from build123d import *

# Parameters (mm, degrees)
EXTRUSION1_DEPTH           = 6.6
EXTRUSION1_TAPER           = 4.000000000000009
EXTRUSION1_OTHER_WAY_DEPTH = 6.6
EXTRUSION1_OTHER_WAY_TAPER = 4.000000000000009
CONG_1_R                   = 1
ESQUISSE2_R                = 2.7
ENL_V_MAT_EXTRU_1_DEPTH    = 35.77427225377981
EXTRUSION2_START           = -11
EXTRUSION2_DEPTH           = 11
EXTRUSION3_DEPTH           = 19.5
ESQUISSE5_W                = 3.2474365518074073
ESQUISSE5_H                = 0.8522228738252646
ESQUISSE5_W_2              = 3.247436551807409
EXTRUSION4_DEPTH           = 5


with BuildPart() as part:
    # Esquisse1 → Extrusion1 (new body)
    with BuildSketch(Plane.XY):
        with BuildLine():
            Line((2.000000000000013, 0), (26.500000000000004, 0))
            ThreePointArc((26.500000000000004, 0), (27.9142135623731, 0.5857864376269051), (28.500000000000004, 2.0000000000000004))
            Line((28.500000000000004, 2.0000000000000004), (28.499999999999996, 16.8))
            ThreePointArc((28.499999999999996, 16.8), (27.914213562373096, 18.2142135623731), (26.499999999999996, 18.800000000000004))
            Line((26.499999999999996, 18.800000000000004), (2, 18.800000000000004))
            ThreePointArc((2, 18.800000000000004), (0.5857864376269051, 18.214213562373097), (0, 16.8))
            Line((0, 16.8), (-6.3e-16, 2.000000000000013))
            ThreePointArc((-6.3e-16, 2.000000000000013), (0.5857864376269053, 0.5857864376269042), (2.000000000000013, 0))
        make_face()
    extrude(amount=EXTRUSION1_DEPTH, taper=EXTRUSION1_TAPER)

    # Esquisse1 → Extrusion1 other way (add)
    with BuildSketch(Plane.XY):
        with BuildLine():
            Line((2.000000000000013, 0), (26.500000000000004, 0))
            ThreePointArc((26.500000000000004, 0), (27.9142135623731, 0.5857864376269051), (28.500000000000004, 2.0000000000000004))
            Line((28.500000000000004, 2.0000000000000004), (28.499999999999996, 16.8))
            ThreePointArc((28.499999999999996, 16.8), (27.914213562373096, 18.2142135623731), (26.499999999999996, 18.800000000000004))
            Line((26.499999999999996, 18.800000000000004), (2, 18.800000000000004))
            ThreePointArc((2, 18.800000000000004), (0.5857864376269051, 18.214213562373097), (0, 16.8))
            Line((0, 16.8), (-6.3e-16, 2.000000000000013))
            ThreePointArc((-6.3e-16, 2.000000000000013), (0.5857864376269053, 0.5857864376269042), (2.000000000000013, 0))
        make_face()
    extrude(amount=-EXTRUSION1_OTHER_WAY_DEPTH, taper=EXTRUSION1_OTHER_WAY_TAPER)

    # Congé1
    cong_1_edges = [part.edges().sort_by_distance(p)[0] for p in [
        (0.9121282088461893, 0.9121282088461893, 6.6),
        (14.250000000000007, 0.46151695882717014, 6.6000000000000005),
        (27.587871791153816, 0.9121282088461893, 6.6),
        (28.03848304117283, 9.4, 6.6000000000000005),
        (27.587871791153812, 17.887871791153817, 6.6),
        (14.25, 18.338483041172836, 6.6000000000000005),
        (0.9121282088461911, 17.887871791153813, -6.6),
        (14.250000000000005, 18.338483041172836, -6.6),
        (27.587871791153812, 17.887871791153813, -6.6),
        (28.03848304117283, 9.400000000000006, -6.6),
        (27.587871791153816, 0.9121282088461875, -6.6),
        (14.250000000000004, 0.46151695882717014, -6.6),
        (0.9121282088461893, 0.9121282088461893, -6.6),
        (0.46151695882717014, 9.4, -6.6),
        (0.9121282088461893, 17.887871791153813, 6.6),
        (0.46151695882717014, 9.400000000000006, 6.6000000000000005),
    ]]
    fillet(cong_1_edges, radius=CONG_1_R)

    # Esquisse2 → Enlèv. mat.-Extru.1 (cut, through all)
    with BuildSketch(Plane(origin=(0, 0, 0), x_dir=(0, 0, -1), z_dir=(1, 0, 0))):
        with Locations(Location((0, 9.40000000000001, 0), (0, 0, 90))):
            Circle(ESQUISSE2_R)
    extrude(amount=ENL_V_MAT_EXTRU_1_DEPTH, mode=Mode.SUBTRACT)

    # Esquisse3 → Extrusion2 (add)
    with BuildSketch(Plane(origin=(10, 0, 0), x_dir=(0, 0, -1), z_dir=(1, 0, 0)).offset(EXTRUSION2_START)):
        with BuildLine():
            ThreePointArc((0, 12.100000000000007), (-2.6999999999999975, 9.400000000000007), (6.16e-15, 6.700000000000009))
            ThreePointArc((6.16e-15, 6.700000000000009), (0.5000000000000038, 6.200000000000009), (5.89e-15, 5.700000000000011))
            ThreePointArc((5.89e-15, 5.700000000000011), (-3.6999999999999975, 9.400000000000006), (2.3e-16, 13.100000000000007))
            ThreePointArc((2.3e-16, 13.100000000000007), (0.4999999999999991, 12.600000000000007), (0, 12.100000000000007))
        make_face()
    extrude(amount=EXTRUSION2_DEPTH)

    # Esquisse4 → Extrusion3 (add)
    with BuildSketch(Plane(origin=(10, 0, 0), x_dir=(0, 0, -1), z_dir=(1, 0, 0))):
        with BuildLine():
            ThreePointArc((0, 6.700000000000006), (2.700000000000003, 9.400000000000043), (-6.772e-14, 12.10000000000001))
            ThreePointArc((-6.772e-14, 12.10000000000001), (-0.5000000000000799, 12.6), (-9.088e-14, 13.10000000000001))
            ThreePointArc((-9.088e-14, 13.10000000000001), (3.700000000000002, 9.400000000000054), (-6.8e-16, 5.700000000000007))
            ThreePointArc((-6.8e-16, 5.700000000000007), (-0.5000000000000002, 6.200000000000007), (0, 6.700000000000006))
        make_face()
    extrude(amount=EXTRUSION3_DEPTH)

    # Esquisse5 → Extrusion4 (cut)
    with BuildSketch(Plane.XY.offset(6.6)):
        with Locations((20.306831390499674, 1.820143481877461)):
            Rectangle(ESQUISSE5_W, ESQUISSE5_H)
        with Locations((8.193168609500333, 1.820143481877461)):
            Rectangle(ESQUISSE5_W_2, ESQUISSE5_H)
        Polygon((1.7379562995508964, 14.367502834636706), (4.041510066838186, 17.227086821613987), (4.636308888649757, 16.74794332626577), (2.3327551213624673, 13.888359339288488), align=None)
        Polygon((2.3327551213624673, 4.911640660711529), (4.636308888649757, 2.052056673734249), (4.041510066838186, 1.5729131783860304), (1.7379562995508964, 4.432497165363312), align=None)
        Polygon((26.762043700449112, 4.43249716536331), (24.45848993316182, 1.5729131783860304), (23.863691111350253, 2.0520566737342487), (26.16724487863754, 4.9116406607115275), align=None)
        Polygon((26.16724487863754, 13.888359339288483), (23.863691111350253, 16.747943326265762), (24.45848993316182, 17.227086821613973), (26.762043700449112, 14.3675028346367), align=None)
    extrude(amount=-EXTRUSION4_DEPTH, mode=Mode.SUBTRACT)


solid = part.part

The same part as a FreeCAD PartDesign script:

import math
import FreeCAD as App
import Part
import Sketcher
Q = App.Units.Quantity


def edges_at(feature, points):
    """Names of the edges that pass closest to the given points."""
    edges = feature.Shape.Edges
    near = lambda p: min(range(len(edges)), key=lambda i: edges[i].distToShape(Part.Vertex(*p))[0])
    return sorted({f"Edge{near(p) + 1}" for p in points})

doc = App.newDocument("Part")
params = doc.addObject("Spreadsheet::Sheet", "Params")
for row, (alias, value) in enumerate([
    ("sketch1_radius", "2 mm"),
    ("sketch1_width", "24.5 mm"),
    ("sketch1_height", "14.8 mm"),
    ("pad1_length", "6.6 mm"),
    ("pad1_taper", "-4 deg"),
    ("sketch2_radius", "2 mm"),
    ("sketch2_width", "24.5 mm"),
    ("sketch2_height", "14.8 mm"),
    ("pad2_length", "6.6 mm"),
    ("pad2_taper", "-4 deg"),
    ("fillet_radius", "1 mm"),
    ("sketch3_diameter", "5.4 mm"),
    ("sketch4_radius", "2.7 mm"),
    ("sketch4_radius2", "0.5 mm"),
    ("pad3_length", "11 mm"),
    ("sketch5_radius", "2.7 mm"),
    ("sketch5_radius2", "0.5 mm"),
    ("pad4_length", "19.5 mm"),
    ("pocket2_length", "5 mm"),
], start=1):
    params.set(f"A{row}", alias)
    params.set(f"B{row}", "=" + value)
    params.setAlias(f"B{row}", alias)

body = doc.addObject("PartDesign::Body", "Body")

# Sketch on XY plane
sketch1 = doc.addObject("Sketcher::SketchObject", "Sketch")
body.addObject(sketch1)
sketch1.AttachmentSupport = (doc.XY_Plane, [""])
sketch1.MapMode = "FlatFace"
sketch1.addGeometry([
    Part.LineSegment(App.Vector(2, 0, 0), App.Vector(26.5, 0, 0)),  # 0
    Part.ArcOfCircle(Part.Circle(App.Vector(26.5, 2, 0), App.Vector(0, 0, 1), 2), math.radians(-90), math.radians(0)),  # 1
    Part.LineSegment(App.Vector(28.5, 2, 0), App.Vector(28.5, 16.8, 0)),  # 2
    Part.ArcOfCircle(Part.Circle(App.Vector(26.5, 16.8, 0), App.Vector(0, 0, 1), 2), math.radians(0), math.radians(90)),  # 3
    Part.LineSegment(App.Vector(26.5, 18.8, 0), App.Vector(2, 18.8, 0)),  # 4
    Part.ArcOfCircle(Part.Circle(App.Vector(2, 16.8, 0), App.Vector(0, 0, 1), 2), math.radians(90), math.radians(180)),  # 5
    Part.LineSegment(App.Vector(0, 16.8, 0), App.Vector(0, 2, 0)),  # 6
    Part.ArcOfCircle(Part.Circle(App.Vector(2, 2, 0), App.Vector(0, 0, 1), 2), math.radians(180), math.radians(270)),  # 7
], False)
sketch1.addConstraint([
    Sketcher.Constraint("Tangent", 0, 2, 1, 1),
    Sketcher.Constraint("Tangent", 1, 2, 2, 1),
    Sketcher.Constraint("Tangent", 2, 2, 3, 1),
    Sketcher.Constraint("Tangent", 3, 2, 4, 1),
    Sketcher.Constraint("Tangent", 4, 2, 5, 1),
    Sketcher.Constraint("Tangent", 5, 2, 6, 1),
    Sketcher.Constraint("Tangent", 6, 2, 7, 1),
    Sketcher.Constraint("Tangent", 7, 2, 0, 1),
    Sketcher.Constraint("Horizontal", 0),
    Sketcher.Constraint("Vertical", 2),
    Sketcher.Constraint("Horizontal", 4),
    Sketcher.Constraint("Vertical", 6),
    Sketcher.Constraint("Equal", 1, 3),
    Sketcher.Constraint("Equal", 3, 5),
    Sketcher.Constraint("Equal", 5, 7),
    Sketcher.Constraint("PointOnObject", 0, 2, -1),
    Sketcher.Constraint("PointOnObject", 5, 2, -2),
    Sketcher.Constraint("Radius", 1, Q("2 mm")),
    Sketcher.Constraint("DistanceX", 0, 1, 0, 2, Q("24.5 mm")),
    Sketcher.Constraint("DistanceY", 2, 1, 2, 2, Q("14.8 mm")),
])
sketch1.setExpression("Constraints[17]", "Params.sketch1_radius")
sketch1.setExpression("Constraints[18]", "Params.sketch1_width")
sketch1.setExpression("Constraints[19]", "Params.sketch1_height")
pad1 = doc.addObject("PartDesign::Pad", "Pad")
body.addObject(pad1)
pad1.Profile = sketch1
pad1.setExpression("Length", "Params.pad1_length")
pad1.setExpression("TaperAngle", "Params.pad1_taper")

# Sketch on XY plane
sketch2 = doc.addObject("Sketcher::SketchObject", "Sketch001")
body.addObject(sketch2)
sketch2.AttachmentSupport = (doc.XY_Plane, [""])
sketch2.MapMode = "FlatFace"
sketch2.addGeometry([
    Part.LineSegment(App.Vector(2, 0, 0), App.Vector(26.5, 0, 0)),  # 0
    Part.ArcOfCircle(Part.Circle(App.Vector(26.5, 2, 0), App.Vector(0, 0, 1), 2), math.radians(-90), math.radians(0)),  # 1
    Part.LineSegment(App.Vector(28.5, 2, 0), App.Vector(28.5, 16.8, 0)),  # 2
    Part.ArcOfCircle(Part.Circle(App.Vector(26.5, 16.8, 0), App.Vector(0, 0, 1), 2), math.radians(0), math.radians(90)),  # 3
    Part.LineSegment(App.Vector(26.5, 18.8, 0), App.Vector(2, 18.8, 0)),  # 4
    Part.ArcOfCircle(Part.Circle(App.Vector(2, 16.8, 0), App.Vector(0, 0, 1), 2), math.radians(90), math.radians(180)),  # 5
    Part.LineSegment(App.Vector(0, 16.8, 0), App.Vector(0, 2, 0)),  # 6
    Part.ArcOfCircle(Part.Circle(App.Vector(2, 2, 0), App.Vector(0, 0, 1), 2), math.radians(180), math.radians(270)),  # 7
], False)
sketch2.addConstraint([
    Sketcher.Constraint("Tangent", 0, 2, 1, 1),
    Sketcher.Constraint("Tangent", 1, 2, 2, 1),
    Sketcher.Constraint("Tangent", 2, 2, 3, 1),
    Sketcher.Constraint("Tangent", 3, 2, 4, 1),
    Sketcher.Constraint("Tangent", 4, 2, 5, 1),
    Sketcher.Constraint("Tangent", 5, 2, 6, 1),
    Sketcher.Constraint("Tangent", 6, 2, 7, 1),
    Sketcher.Constraint("Tangent", 7, 2, 0, 1),
    Sketcher.Constraint("Horizontal", 0),
    Sketcher.Constraint("Vertical", 2),
    Sketcher.Constraint("Horizontal", 4),
    Sketcher.Constraint("Vertical", 6),
    Sketcher.Constraint("Equal", 1, 3),
    Sketcher.Constraint("Equal", 3, 5),
    Sketcher.Constraint("Equal", 5, 7),
    Sketcher.Constraint("PointOnObject", 0, 2, -1),
    Sketcher.Constraint("PointOnObject", 5, 2, -2),
    Sketcher.Constraint("Radius", 1, Q("2 mm")),
    Sketcher.Constraint("DistanceX", 0, 1, 0, 2, Q("24.5 mm")),
    Sketcher.Constraint("DistanceY", 2, 1, 2, 2, Q("14.8 mm")),
])
sketch2.setExpression("Constraints[17]", "Params.sketch2_radius")
sketch2.setExpression("Constraints[18]", "Params.sketch2_width")
sketch2.setExpression("Constraints[19]", "Params.sketch2_height")
pad2 = doc.addObject("PartDesign::Pad", "Pad001")
body.addObject(pad2)
pad2.Profile = sketch2
pad2.setExpression("Length", "Params.pad2_length")
pad2.Reversed = True
pad2.setExpression("TaperAngle", "Params.pad2_taper")
doc.recompute()

fillet = doc.addObject("PartDesign::Fillet", "Fillet")
body.addObject(fillet)
fillet.Base = (pad2, edges_at(pad2, [
    (0.912, 0.912, 6.6),
    (14.25, 0.462, 6.6),
    (27.588, 0.912, 6.6),
    (28.038, 9.4, 6.6),
    (27.588, 17.888, 6.6),
    (14.25, 18.338, 6.6),
    (0.912, 17.888, -6.6),
    (14.25, 18.338, -6.6),
    (27.588, 17.888, -6.6),
    (28.038, 9.4, -6.6),
    (27.588, 0.912, -6.6),
    (14.25, 0.462, -6.6),
    (0.912, 0.912, -6.6),
    (0.462, 9.4, -6.6),
    (0.912, 17.888, 6.6),
    (0.462, 9.4, 6.6),
]))
fillet.setExpression("Radius", "Params.fillet_radius")

# Sketch on YZ plane
sketch3 = doc.addObject("Sketcher::SketchObject", "Sketch002")
body.addObject(sketch3)
sketch3.AttachmentSupport = (doc.YZ_Plane, [""])
sketch3.MapMode = "FlatFace"
sketch3.addGeometry(Part.Circle(App.Vector(9.4, 0, 0), App.Vector(0, 0, 1), 2.7), False)
sketch3.addConstraint([
    Sketcher.Constraint("PointOnObject", 0, 3, -1),
    Sketcher.Constraint("Diameter", 0, Q("5.4 mm")),
    Sketcher.Constraint("DistanceX", -1, 1, 0, 3, Q("9.4 mm")),
])
sketch3.setExpression("Constraints[1]", "Params.sketch3_diameter")
pocket1 = doc.addObject("PartDesign::Pocket", "Pocket")
body.addObject(pocket1)
pocket1.Profile = sketch3
pocket1.Type = "ThroughAll"
pocket1.Reversed = True

# Sketch on YZ plane
sketch4 = doc.addObject("Sketcher::SketchObject", "Sketch003")
body.addObject(sketch4)
sketch4.AttachmentSupport = (doc.YZ_Plane, [""])
sketch4.MapMode = "FlatFace"
sketch4.AttachmentOffset = App.Placement(App.Vector(0, 0, -1), App.Rotation())
sketch4.addGeometry([
    Part.ArcOfCircle(Part.Circle(App.Vector(9.4, 0, 0), App.Vector(0, 0, 1), 2.7), math.radians(0), math.radians(180)),
    Part.ArcOfCircle(Part.Circle(App.Vector(12.6, 0, 0), App.Vector(0, 0, 1), 0.5), math.radians(180), math.radians(360)),
    Part.ArcOfCircle(Part.Circle(App.Vector(9.4, 0, 0), App.Vector(0, 0, 1), 3.7), math.radians(0), math.radians(180)),
    Part.ArcOfCircle(Part.Circle(App.Vector(6.2, 0, 0), App.Vector(0, 0, 1), 0.5), math.radians(180), math.radians(360)),
], False)
sketch4.addConstraint([
    Sketcher.Constraint("Tangent", 0, 1, 1, 1),
    Sketcher.Constraint("Tangent", 1, 2, 2, 1),
    Sketcher.Constraint("Tangent", 2, 2, 3, 1),
    Sketcher.Constraint("Tangent", 3, 2, 0, 2),
    Sketcher.Constraint("Coincident", 2, 3, 0, 3),
    Sketcher.Constraint("PointOnObject", 0, 3, -1),
    Sketcher.Constraint("PointOnObject", 1, 3, -1),
    Sketcher.Constraint("PointOnObject", 3, 3, -1),
    Sketcher.Constraint("Radius", 0, Q("2.7 mm")),
    Sketcher.Constraint("Radius", 1, Q("0.5 mm")),
    Sketcher.Constraint("DistanceX", -1, 1, 0, 3, Q("9.4 mm")),
])
sketch4.setExpression("Constraints[8]", "Params.sketch4_radius")
sketch4.setExpression("Constraints[9]", "Params.sketch4_radius2")
pad3 = doc.addObject("PartDesign::Pad", "Pad002")
body.addObject(pad3)
pad3.Profile = sketch4
pad3.setExpression("Length", "Params.pad3_length")

# Sketch on YZ plane
sketch5 = doc.addObject("Sketcher::SketchObject", "Sketch004")
body.addObject(sketch5)
sketch5.AttachmentSupport = (doc.YZ_Plane, [""])
sketch5.MapMode = "FlatFace"
sketch5.AttachmentOffset = App.Placement(App.Vector(0, 0, 10), App.Rotation())
sketch5.addGeometry([
    Part.ArcOfCircle(Part.Circle(App.Vector(9.4, 0, 0), App.Vector(0, 0, 1), 2.7), math.radians(180), math.radians(360)),
    Part.ArcOfCircle(Part.Circle(App.Vector(6.2, 0, 0), App.Vector(0, 0, 1), 0.5), math.radians(0), math.radians(180)),
    Part.ArcOfCircle(Part.Circle(App.Vector(9.4, 0, 0), App.Vector(0, 0, 1), 3.7), math.radians(180), math.radians(360)),
    Part.ArcOfCircle(Part.Circle(App.Vector(12.6, 0, 0), App.Vector(0, 0, 1), 0.5), math.radians(0), math.radians(180)),
], False)
sketch5.addConstraint([
    Sketcher.Constraint("Tangent", 0, 1, 1, 1),
    Sketcher.Constraint("Tangent", 1, 2, 2, 1),
    Sketcher.Constraint("Tangent", 2, 2, 3, 1),
    Sketcher.Constraint("Tangent", 3, 2, 0, 2),
    Sketcher.Constraint("Coincident", 2, 3, 0, 3),
    Sketcher.Constraint("PointOnObject", 0, 3, -1),
    Sketcher.Constraint("PointOnObject", 1, 3, -1),
    Sketcher.Constraint("PointOnObject", 3, 3, -1),
    Sketcher.Constraint("Radius", 0, Q("2.7 mm")),
    Sketcher.Constraint("Radius", 1, Q("0.5 mm")),
    Sketcher.Constraint("DistanceX", -1, 1, 0, 3, Q("9.4 mm")),
])
sketch5.setExpression("Constraints[8]", "Params.sketch5_radius")
sketch5.setExpression("Constraints[9]", "Params.sketch5_radius2")
pad4 = doc.addObject("PartDesign::Pad", "Pad003")
body.addObject(pad4)
pad4.Profile = sketch5
pad4.setExpression("Length", "Params.pad4_length")

# Sketch on XY plane
sketch6 = doc.addObject("Sketcher::SketchObject", "Sketch005")
body.addObject(sketch6)
sketch6.AttachmentSupport = (doc.XY_Plane, [""])
sketch6.MapMode = "FlatFace"
sketch6.AttachmentOffset = App.Placement(App.Vector(0, 0, 6.6), App.Rotation())
sketch6.addGeometry([
    Part.LineSegment(App.Vector(18.7, 2.2, 0), App.Vector(18.7, 1.4, 0)),  # 0
    Part.LineSegment(App.Vector(18.7, 1.4, 0), App.Vector(21.9, 1.4, 0)),  # 1
    Part.LineSegment(App.Vector(21.9, 1.4, 0), App.Vector(21.9, 2.2, 0)),  # 2
    Part.LineSegment(App.Vector(21.9, 2.2, 0), App.Vector(18.7, 2.2, 0)),  # 3
    Part.LineSegment(App.Vector(6.6, 2.2, 0), App.Vector(6.6, 1.4, 0)),  # 4
    Part.LineSegment(App.Vector(6.6, 1.4, 0), App.Vector(9.8, 1.4, 0)),  # 5
    Part.LineSegment(App.Vector(9.8, 1.4, 0), App.Vector(9.8, 2.2, 0)),  # 6
    Part.LineSegment(App.Vector(9.8, 2.2, 0), App.Vector(6.6, 2.2, 0)),  # 7
    Part.LineSegment(App.Vector(4, 17.2, 0), App.Vector(1.7, 14.4, 0)),  # 8
    Part.LineSegment(App.Vector(1.7, 14.4, 0), App.Vector(2.3, 13.9, 0)),  # 9
    Part.LineSegment(App.Vector(2.3, 13.9, 0), App.Vector(4.6, 16.7, 0)),  # 10
    Part.LineSegment(App.Vector(4.6, 16.7, 0), App.Vector(4, 17.2, 0)),  # 11
    Part.LineSegment(App.Vector(4.6, 2.1, 0), App.Vector(2.3, 4.9, 0)),  # 12
    Part.LineSegment(App.Vector(2.3, 4.9, 0), App.Vector(1.7, 4.4, 0)),  # 13
    Part.LineSegment(App.Vector(1.7, 4.4, 0), App.Vector(4, 1.6, 0)),  # 14
    Part.LineSegment(App.Vector(4, 1.6, 0), App.Vector(4.6, 2.1, 0)),  # 15
    Part.LineSegment(App.Vector(24.5, 1.6, 0), App.Vector(26.8, 4.4, 0)),  # 16
    Part.LineSegment(App.Vector(26.8, 4.4, 0), App.Vector(26.2, 4.9, 0)),  # 17
    Part.LineSegment(App.Vector(26.2, 4.9, 0), App.Vector(23.9, 2.1, 0)),  # 18
    Part.LineSegment(App.Vector(23.9, 2.1, 0), App.Vector(24.5, 1.6, 0)),  # 19
    Part.LineSegment(App.Vector(23.9, 16.7, 0), App.Vector(26.2, 13.9, 0)),  # 20
    Part.LineSegment(App.Vector(26.2, 13.9, 0), App.Vector(26.8, 14.4, 0)),  # 21
    Part.LineSegment(App.Vector(26.8, 14.4, 0), App.Vector(24.5, 17.2, 0)),  # 22
    Part.LineSegment(App.Vector(24.5, 17.2, 0), App.Vector(23.9, 16.7, 0)),  # 23
], False)
sketch6.addConstraint([
    Sketcher.Constraint("Coincident", 0, 2, 1, 1),
    Sketcher.Constraint("Coincident", 1, 2, 2, 1),
    Sketcher.Constraint("Coincident", 2, 2, 3, 1),
    Sketcher.Constraint("Coincident", 3, 2, 0, 1),
    Sketcher.Constraint("Coincident", 4, 2, 5, 1),
    Sketcher.Constraint("Coincident", 5, 2, 6, 1),
    Sketcher.Constraint("Coincident", 6, 2, 7, 1),
    Sketcher.Constraint("Coincident", 7, 2, 4, 1),
    Sketcher.Constraint("Coincident", 8, 2, 9, 1),
    Sketcher.Constraint("Coincident", 9, 2, 10, 1),
    Sketcher.Constraint("Coincident", 10, 2, 11, 1),
    Sketcher.Constraint("Coincident", 11, 2, 8, 1),
    Sketcher.Constraint("Coincident", 12, 2, 13, 1),
    Sketcher.Constraint("Coincident", 13, 2, 14, 1),
    Sketcher.Constraint("Coincident", 14, 2, 15, 1),
    Sketcher.Constraint("Coincident", 15, 2, 12, 1),
    Sketcher.Constraint("Coincident", 16, 2, 17, 1),
    Sketcher.Constraint("Coincident", 17, 2, 18, 1),
    Sketcher.Constraint("Coincident", 18, 2, 19, 1),
    Sketcher.Constraint("Coincident", 19, 2, 16, 1),
    Sketcher.Constraint("Coincident", 20, 2, 21, 1),
    Sketcher.Constraint("Coincident", 21, 2, 22, 1),
    Sketcher.Constraint("Coincident", 22, 2, 23, 1),
    Sketcher.Constraint("Coincident", 23, 2, 20, 1),
    Sketcher.Constraint("Vertical", 0),
    Sketcher.Constraint("Horizontal", 1),
    Sketcher.Constraint("Vertical", 2),
    Sketcher.Constraint("Horizontal", 3),
    Sketcher.Constraint("Vertical", 4),
    Sketcher.Constraint("Horizontal", 5),
    Sketcher.Constraint("Vertical", 6),
    Sketcher.Constraint("Horizontal", 7),
    Sketcher.Constraint("Perpendicular", 8, 9),
    Sketcher.Constraint("Perpendicular", 9, 10),
    Sketcher.Constraint("Perpendicular", 10, 11),
    Sketcher.Constraint("Perpendicular", 12, 13),
    Sketcher.Constraint("Perpendicular", 13, 14),
    Sketcher.Constraint("Perpendicular", 14, 15),
    Sketcher.Constraint("Perpendicular", 11, 16),
    Sketcher.Constraint("Perpendicular", 16, 17),
    Sketcher.Constraint("Perpendicular", 17, 18),
    Sketcher.Constraint("Perpendicular", 18, 19),
    Sketcher.Constraint("Perpendicular", 15, 20),
    Sketcher.Constraint("Perpendicular", 20, 21),
    Sketcher.Constraint("Perpendicular", 21, 22),
    Sketcher.Constraint("Perpendicular", 22, 23),
    Sketcher.Constraint("Horizontal", 1, 2, 4, 2),
    Sketcher.Constraint("Horizontal", 3, 2, 6, 2),
    Sketcher.Constraint("Horizontal", 13, 2, 16, 2),
    Sketcher.Constraint("Horizontal", 12, 2, 17, 2),
    Sketcher.Constraint("Horizontal", 15, 2, 18, 2),
    Sketcher.Constraint("Horizontal", 9, 2, 20, 2),
    Sketcher.Constraint("Horizontal", 8, 2, 21, 2),
    Sketcher.Constraint("Horizontal", 11, 2, 22, 2),
    Sketcher.Constraint("Vertical", 9, 2, 12, 2),
    Sketcher.Constraint("Vertical", 8, 2, 13, 2),
    Sketcher.Constraint("Vertical", 11, 2, 14, 2),
    Sketcher.Constraint("Vertical", 17, 2, 20, 2),
    Sketcher.Constraint("Vertical", 16, 2, 21, 2),
    Sketcher.Constraint("Equal", 3, 5),
    Sketcher.Constraint("Distance", 8, Q("3.672 mm")),
    Sketcher.Constraint("DistanceX", 4, 2, 1, 2, Q("15.361099 mm")),
    Sketcher.Constraint("DistanceX", 8, 2, 9, 2, Q("0.594799 mm")),
    Sketcher.Constraint("DistanceY", 15, 2, 7, 2, Q("0.194198 mm")),
    Sketcher.Constraint("DistanceX", 1, 1, 1, 2, Q("3.247437 mm")),
    Sketcher.Constraint("DistanceY", 0, 2, 0, 1, Q("0.852223 mm")),
    Sketcher.Constraint("DistanceX", -1, 1, 1, 2, Q("21.93055 mm")),
    Sketcher.Constraint("DistanceY", -1, 1, 9, 2, Q("13.888359 mm")),
    Sketcher.Constraint("DistanceX", -1, 1, 10, 2, Q("4.636309 mm")),
    Sketcher.Constraint("DistanceY", -1, 1, 12, 2, Q("4.911641 mm")),
    Sketcher.Constraint("DistanceX", -1, 1, 18, 2, Q("23.863691 mm")),
    Sketcher.Constraint("DistanceY", 4, 2, 8, 2, Q("12.973471 mm")),
])
pocket2 = doc.addObject("PartDesign::Pocket", "Pocket001")
body.addObject(pocket2)
pocket2.Profile = sketch6
pocket2.setExpression("Length", "Params.pocket2_length")

doc.recompute()
